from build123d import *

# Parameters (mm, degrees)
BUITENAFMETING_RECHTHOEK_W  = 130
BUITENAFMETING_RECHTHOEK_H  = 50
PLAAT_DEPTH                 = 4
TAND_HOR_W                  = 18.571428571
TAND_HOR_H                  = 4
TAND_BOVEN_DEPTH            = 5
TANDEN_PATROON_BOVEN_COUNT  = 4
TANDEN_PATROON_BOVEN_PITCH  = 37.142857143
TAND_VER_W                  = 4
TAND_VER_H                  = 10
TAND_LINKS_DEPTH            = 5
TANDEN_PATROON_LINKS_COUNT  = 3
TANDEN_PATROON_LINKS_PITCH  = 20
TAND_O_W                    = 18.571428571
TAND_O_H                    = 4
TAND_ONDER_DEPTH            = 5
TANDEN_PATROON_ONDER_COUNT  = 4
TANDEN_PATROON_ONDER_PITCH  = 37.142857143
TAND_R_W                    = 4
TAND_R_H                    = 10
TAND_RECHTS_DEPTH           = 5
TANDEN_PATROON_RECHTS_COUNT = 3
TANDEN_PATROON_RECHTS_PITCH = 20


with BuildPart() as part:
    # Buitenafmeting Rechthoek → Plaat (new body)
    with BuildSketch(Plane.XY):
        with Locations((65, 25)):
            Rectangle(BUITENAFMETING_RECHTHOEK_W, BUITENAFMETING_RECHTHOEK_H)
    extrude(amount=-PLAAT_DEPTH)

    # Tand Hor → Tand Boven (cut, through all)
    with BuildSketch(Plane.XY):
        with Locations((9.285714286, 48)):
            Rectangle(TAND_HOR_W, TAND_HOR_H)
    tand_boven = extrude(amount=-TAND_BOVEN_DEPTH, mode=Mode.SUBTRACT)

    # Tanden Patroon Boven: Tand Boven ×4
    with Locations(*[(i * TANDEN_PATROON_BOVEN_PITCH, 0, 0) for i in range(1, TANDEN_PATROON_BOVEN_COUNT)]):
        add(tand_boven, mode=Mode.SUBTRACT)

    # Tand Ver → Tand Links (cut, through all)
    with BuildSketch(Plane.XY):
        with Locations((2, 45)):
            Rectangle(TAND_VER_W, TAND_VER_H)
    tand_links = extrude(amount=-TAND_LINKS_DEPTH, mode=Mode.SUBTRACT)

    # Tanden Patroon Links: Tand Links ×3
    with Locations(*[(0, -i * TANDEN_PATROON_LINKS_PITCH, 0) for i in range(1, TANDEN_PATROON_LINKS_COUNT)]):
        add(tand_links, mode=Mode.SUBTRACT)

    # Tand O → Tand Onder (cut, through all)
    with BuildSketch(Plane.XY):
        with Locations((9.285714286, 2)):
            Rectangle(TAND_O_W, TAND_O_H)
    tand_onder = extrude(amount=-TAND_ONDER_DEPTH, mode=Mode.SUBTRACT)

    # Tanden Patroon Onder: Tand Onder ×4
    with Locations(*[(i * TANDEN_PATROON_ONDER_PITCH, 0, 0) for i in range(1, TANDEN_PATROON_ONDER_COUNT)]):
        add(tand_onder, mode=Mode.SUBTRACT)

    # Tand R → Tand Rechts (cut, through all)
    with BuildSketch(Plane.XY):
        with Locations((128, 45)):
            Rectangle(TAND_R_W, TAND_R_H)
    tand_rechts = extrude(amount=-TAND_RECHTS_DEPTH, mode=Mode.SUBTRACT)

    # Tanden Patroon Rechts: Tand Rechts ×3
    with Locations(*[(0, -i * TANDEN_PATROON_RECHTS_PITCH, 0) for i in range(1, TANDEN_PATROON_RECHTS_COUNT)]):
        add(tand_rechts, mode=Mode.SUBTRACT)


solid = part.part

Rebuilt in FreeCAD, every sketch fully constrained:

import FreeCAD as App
import Part
import Sketcher
Q = App.Units.Quantity

doc = App.newDocument("Part")
body = doc.addObject("PartDesign::Body", "Body")

sketch1 = body.newObject("Sketcher::SketchObject", "Sketch")
sketch1.AttachmentSupport = (doc.getObject("XY_Plane"), [""])
sketch1.MapMode = "FlatFace"
sketch1.addGeometry([
    Part.LineSegment(App.Vector(0, 50, 0), App.Vector(0, 0, 0)),
    Part.LineSegment(App.Vector(0, 0, 0), App.Vector(130, 0, 0)),
    Part.LineSegment(App.Vector(130, 0, 0), App.Vector(130, 50, 0)),
    Part.LineSegment(App.Vector(130, 50, 0), App.Vector(0, 50, 0)),
], False)
sketch1.addConstraint([
    Sketcher.Constraint("Coincident", 0, 2, 1, 1),
    Sketcher.Constraint("Coincident", 1, 2, 2, 1),
    Sketcher.Constraint("Coincident", 2, 2, 3, 1),
    Sketcher.Constraint("Coincident", 3, 2, 0, 1),
    Sketcher.Constraint("Vertical", 0),
    Sketcher.Constraint("Horizontal", 1),
    Sketcher.Constraint("Vertical", 2),
    Sketcher.Constraint("Horizontal", 3),
    Sketcher.Constraint("Coincident", 0, 2, -1, 1),
    Sketcher.Constraint("DistanceX", 1, 1, 1, 2, Q("130 mm")),
    Sketcher.Constraint("DistanceY", 0, 2, 0, 1, Q("50 mm")),
])
pad1 = body.newObject("PartDesign::Pad", "Pad")
pad1.Profile = sketch1
pad1.Length = 4
pad1.Reversed = True

sketch2 = body.newObject("Sketcher::SketchObject", "Sketch001")
sketch2.AttachmentSupport = (doc.getObject("XY_Plane"), [""])
sketch2.MapMode = "FlatFace"
sketch2.addGeometry([
    Part.LineSegment(App.Vector(0, 50, 0), App.Vector(0, 46, 0)),
    Part.LineSegment(App.Vector(0, 46, 0), App.Vector(18.6, 46, 0)),
    Part.LineSegment(App.Vector(18.6, 46, 0), App.Vector(18.6, 50, 0)),
    Part.LineSegment(App.Vector(18.6, 50, 0), App.Vector(0, 50, 0)),
], False)
sketch2.addConstraint([
    Sketcher.Constraint("Coincident", 0, 2, 1, 1),
    Sketcher.Constraint("Coincident", 1, 2, 2, 1),
    Sketcher.Constraint("Coincident", 2, 2, 3, 1),
    Sketcher.Constraint("Coincident", 3, 2, 0, 1),
    Sketcher.Constraint("Vertical", 0),
    Sketcher.Constraint("Horizontal", 1),
    Sketcher.Constraint("Vertical", 2),
    Sketcher.Constraint("Horizontal", 3),
    Sketcher.Constraint("PointOnObject", 0, 2, -2),
    Sketcher.Constraint("DistanceY", 0, 2, 0, 1, Q("4 mm")),
    Sketcher.Constraint("DistanceY", -1, 1, 0, 2, Q("46 mm")),
    Sketcher.Constraint("DistanceX", 1, 1, 1, 2, Q("18.571429 mm")),
])
pocket1 = body.newObject("PartDesign::Pocket", "Pocket")
pocket1.Profile = sketch2
pocket1.Type = "ThroughAll"
doc.recompute()

linearpattern = body.newObject("PartDesign::LinearPattern", "LinearPattern")
linearpattern.Originals = [pocket1]
linearpattern.Direction = (doc.getObject("X_Axis"), [""])
linearpattern.Mode = "offset"
linearpattern.Offset = 37.142857
linearpattern.Occurrences = 4
body.Tip = linearpattern

sketch3 = body.newObject("Sketcher::SketchObject", "Sketch002")
sketch3.AttachmentSupport = (doc.getObject("XY_Plane"), [""])
sketch3.MapMode = "FlatFace"
sketch3.addGeometry([
    Part.LineSegment(App.Vector(0, 50, 0), App.Vector(0, 40, 0)),
    Part.LineSegment(App.Vector(0, 40, 0), App.Vector(4, 40, 0)),
    Part.LineSegment(App.Vector(4, 40, 0), App.Vector(4, 50, 0)),
    Part.LineSegment(App.Vector(4, 50, 0), App.Vector(0, 50, 0)),
], False)
sketch3.addConstraint([
    Sketcher.Constraint("Coincident", 0, 2, 1, 1),
    Sketcher.Constraint("Coincident", 1, 2, 2, 1),
    Sketcher.Constraint("Coincident", 2, 2, 3, 1),
    Sketcher.Constraint("Coincident", 3, 2, 0, 1),
    Sketcher.Constraint("Vertical", 0),
    Sketcher.Constraint("Horizontal", 1),
    Sketcher.Constraint("Vertical", 2),
    Sketcher.Constraint("Horizontal", 3),
    Sketcher.Constraint("PointOnObject", 0, 2, -2),
    Sketcher.Constraint("DistanceX", 1, 1, 1, 2, Q("4 mm")),
    Sketcher.Constraint("DistanceY", 0, 2, 0, 1, Q("10 mm")),
    Sketcher.Constraint("DistanceY", -1, 1, 0, 2, Q("40 mm")),
])
pocket2 = body.newObject("PartDesign::Pocket", "Pocket001")
pocket2.Profile = sketch3
pocket2.Type = "ThroughAll"
doc.recompute()

linearpattern2 = body.newObject("PartDesign::LinearPattern", "LinearPattern001")
linearpattern2.Originals = [pocket2]
linearpattern2.Direction = (doc.getObject("Y_Axis"), [""])
linearpattern2.Mode = "offset"
linearpattern2.Offset = 20
linearpattern2.Occurrences = 3
linearpattern2.Reversed = True
body.Tip = linearpattern2

sketch4 = body.newObject("Sketcher::SketchObject", "Sketch003")
sketch4.AttachmentSupport = (doc.getObject("XY_Plane"), [""])
sketch4.MapMode = "FlatFace"
sketch4.addGeometry([
    Part.LineSegment(App.Vector(0, 4, 0), App.Vector(0, 0, 0)),
    Part.LineSegment(App.Vector(0, 0, 0), App.Vector(18.6, 0, 0)),
    Part.LineSegment(App.Vector(18.6, 0, 0), App.Vector(18.6, 4, 0)),
    Part.LineSegment(App.Vector(18.6, 4, 0), App.Vector(0, 4, 0)),
], False)
sketch4.addConstraint([
    Sketcher.Constraint("Coincident", 0, 2, 1, 1),
    Sketcher.Constraint("Coincident", 1, 2, 2, 1),
    Sketcher.Constraint("Coincident", 2, 2, 3, 1),
    Sketcher.Constraint("Coincident", 3, 2, 0, 1),
    Sketcher.Constraint("Vertical", 0),
    Sketcher.Constraint("Horizontal", 1),
    Sketcher.Constraint("Vertical", 2),
    Sketcher.Constraint("Horizontal", 3),
    Sketcher.Constraint("Coincident", 0, 2, -1, 1),
    Sketcher.Constraint("DistanceY", 0, 2, 0, 1, Q("4 mm")),
    Sketcher.Constraint("DistanceX", 1, 1, 1, 2, Q("18.571429 mm")),
])
pocket3 = body.newObject("PartDesign::Pocket", "Pocket002")
pocket3.Profile = sketch4
pocket3.Type = "ThroughAll"
doc.recompute()

linearpattern3 = body.newObject("PartDesign::LinearPattern", "LinearPattern002")
linearpattern3.Originals = [pocket3]
linearpattern3.Direction = (doc.getObject("X_Axis"), [""])
linearpattern3.Mode = "offset"
linearpattern3.Offset = 37.142857
linearpattern3.Occurrences = 4
body.Tip = linearpattern3

sketch5 = body.newObject("Sketcher::SketchObject", "Sketch004")
sketch5.AttachmentSupport = (doc.getObject("XY_Plane"), [""])
sketch5.MapMode = "FlatFace"
sketch5.addGeometry([
    Part.LineSegment(App.Vector(126, 50, 0), App.Vector(126, 40, 0)),
    Part.LineSegment(App.Vector(126, 40, 0), App.Vector(130, 40, 0)),
    Part.LineSegment(App.Vector(130, 40, 0), App.Vector(130, 50, 0)),
    Part.LineSegment(App.Vector(130, 50, 0), App.Vector(126, 50, 0)),
], False)
sketch5.addConstraint([
    Sketcher.Constraint("Coincident", 0, 2, 1, 1),
    Sketcher.Constraint("Coincident", 1, 2, 2, 1),
    Sketcher.Constraint("Coincident", 2, 2, 3, 1),
    Sketcher.Constraint("Coincident", 3, 2, 0, 1),
    Sketcher.Constraint("Vertical", 0),
    Sketcher.Constraint("Horizontal", 1),
    Sketcher.Constraint("Vertical", 2),
    Sketcher.Constraint("Horizontal", 3),
    Sketcher.Constraint("DistanceX", 1, 1, 1, 2, Q("4 mm")),
    Sketcher.Constraint("DistanceY", 0, 2, 0, 1, Q("10 mm")),
    Sketcher.Constraint("DistanceX", -1, 1, 0, 2, Q("126 mm")),
    Sketcher.Constraint("DistanceY", -1, 1, 0, 2, Q("40 mm")),
])
pocket4 = body.newObject("PartDesign::Pocket", "Pocket003")
pocket4.Profile = sketch5
pocket4.Type = "ThroughAll"
doc.recompute()

linearpattern4 = body.newObject("PartDesign::LinearPattern", "LinearPattern003")
linearpattern4.Originals = [pocket4]
linearpattern4.Direction = (doc.getObject("Y_Axis"), [""])
linearpattern4.Mode = "offset"
linearpattern4.Offset = 20
linearpattern4.Occurrences = 3
linearpattern4.Reversed = True
body.Tip = linearpattern4

doc.recompute()
